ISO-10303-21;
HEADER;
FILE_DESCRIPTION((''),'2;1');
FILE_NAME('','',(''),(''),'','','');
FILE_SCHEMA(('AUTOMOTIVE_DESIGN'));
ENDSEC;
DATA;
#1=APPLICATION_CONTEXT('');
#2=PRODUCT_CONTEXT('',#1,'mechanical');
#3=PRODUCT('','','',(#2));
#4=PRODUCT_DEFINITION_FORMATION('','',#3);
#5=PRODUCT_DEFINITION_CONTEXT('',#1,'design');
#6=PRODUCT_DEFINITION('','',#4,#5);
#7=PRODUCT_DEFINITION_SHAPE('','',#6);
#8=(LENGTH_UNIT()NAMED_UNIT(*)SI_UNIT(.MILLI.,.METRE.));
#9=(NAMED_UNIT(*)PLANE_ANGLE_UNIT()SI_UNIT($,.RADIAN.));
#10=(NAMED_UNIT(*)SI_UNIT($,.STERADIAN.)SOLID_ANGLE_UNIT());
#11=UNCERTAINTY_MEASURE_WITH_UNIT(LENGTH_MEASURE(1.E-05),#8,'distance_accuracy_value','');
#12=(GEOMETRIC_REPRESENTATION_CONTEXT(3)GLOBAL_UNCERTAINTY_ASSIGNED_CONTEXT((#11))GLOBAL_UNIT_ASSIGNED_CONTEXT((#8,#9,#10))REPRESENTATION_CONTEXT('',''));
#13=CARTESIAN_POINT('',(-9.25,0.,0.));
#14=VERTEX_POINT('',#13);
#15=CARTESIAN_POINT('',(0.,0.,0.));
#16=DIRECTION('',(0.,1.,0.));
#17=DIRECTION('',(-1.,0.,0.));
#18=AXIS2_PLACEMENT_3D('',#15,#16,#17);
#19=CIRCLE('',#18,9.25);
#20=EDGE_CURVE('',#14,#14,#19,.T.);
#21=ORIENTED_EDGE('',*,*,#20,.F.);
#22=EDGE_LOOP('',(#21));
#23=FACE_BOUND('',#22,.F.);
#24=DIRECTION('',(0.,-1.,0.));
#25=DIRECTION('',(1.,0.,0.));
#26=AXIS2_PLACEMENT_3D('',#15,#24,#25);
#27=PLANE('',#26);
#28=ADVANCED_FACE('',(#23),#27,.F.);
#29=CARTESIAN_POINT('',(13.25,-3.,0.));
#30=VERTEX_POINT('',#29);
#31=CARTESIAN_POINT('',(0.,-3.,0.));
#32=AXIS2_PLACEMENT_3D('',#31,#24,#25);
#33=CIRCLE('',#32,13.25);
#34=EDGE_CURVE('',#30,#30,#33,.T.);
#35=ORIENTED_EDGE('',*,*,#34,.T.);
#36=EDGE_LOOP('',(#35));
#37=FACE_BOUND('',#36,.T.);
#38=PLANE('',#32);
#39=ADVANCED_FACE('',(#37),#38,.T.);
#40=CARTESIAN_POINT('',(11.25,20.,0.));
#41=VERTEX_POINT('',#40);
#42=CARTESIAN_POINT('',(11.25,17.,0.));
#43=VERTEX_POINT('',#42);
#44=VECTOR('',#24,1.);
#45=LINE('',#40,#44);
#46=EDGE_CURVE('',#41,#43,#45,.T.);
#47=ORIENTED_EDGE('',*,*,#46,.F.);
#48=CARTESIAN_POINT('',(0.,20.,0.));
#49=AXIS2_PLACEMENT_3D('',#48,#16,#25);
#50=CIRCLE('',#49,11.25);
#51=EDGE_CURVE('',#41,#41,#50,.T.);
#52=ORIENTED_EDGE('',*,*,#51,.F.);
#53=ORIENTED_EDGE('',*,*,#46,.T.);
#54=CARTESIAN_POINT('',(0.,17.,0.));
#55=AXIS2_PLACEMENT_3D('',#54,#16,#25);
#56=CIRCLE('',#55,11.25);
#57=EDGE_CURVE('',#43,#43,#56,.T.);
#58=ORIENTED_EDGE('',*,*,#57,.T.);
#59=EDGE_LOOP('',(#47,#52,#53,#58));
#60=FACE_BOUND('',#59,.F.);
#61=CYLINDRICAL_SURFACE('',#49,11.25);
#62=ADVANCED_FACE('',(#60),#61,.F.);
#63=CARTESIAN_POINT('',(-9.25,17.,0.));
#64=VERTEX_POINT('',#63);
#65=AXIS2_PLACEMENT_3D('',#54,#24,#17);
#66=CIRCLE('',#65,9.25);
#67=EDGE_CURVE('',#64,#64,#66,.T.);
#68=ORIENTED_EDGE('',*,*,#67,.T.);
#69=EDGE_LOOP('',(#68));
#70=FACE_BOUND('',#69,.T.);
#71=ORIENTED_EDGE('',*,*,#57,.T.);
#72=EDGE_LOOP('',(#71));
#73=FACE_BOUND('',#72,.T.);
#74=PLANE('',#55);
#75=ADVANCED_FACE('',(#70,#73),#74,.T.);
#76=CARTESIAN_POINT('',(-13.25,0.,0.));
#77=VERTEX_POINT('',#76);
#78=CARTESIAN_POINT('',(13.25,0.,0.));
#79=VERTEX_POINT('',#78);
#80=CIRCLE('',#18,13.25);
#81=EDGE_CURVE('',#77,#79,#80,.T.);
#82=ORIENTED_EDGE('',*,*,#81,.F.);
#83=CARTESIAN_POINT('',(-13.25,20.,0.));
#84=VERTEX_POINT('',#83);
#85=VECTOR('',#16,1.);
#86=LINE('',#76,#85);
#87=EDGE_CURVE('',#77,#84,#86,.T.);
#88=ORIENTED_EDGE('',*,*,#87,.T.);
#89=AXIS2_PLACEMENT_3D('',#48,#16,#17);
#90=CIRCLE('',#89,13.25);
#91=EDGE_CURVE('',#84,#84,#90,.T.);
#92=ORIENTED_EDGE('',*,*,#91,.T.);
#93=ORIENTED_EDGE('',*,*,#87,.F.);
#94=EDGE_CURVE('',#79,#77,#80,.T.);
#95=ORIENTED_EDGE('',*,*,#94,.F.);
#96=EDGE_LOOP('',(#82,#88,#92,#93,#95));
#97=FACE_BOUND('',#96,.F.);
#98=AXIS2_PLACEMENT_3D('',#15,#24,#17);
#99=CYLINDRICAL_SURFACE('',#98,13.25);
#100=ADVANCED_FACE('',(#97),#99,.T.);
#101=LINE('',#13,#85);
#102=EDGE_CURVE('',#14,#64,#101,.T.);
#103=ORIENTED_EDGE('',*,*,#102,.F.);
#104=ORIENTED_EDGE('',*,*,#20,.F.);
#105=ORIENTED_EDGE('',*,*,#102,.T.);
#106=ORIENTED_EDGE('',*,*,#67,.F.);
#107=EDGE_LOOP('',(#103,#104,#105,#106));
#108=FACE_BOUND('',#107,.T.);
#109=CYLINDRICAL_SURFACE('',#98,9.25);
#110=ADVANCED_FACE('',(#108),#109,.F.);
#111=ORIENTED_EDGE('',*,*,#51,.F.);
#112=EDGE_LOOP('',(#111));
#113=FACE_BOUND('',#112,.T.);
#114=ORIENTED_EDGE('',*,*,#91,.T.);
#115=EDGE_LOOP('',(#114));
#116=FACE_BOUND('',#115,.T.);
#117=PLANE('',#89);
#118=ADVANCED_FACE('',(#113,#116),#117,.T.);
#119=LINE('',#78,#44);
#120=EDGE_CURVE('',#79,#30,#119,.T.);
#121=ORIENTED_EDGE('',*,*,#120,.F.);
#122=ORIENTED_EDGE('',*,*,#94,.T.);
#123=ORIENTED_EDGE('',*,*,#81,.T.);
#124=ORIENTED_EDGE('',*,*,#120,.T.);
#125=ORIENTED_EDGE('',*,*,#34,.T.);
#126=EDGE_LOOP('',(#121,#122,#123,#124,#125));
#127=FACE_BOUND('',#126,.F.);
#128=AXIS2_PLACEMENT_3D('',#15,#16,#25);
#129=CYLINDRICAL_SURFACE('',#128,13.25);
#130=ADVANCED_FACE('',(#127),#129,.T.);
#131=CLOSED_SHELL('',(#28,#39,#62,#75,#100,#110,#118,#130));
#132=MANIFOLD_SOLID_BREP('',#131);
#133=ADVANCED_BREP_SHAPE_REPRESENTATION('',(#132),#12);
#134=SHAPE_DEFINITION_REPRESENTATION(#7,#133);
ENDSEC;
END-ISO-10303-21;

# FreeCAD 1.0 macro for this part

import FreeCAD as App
import Part
import Sketcher
from FreeCAD import Vector

doc = App.newDocument("Part")
body = doc.addObject("PartDesign::Body", "Body")

# Sketch on XZ plane
sketch1 = body.newObject("Sketcher::SketchObject", "Sketch")
sketch1.AttachmentSupport = (doc.getObject("XZ_Plane"), [""])
sketch1.MapMode = "FlatFace"
sketch1.addGeometry(Part.Circle(Vector(0, 0, 0), Vector(0, 0, 1), 13), False)
sketch1.addGeometry(Part.Circle(Vector(0, 0, 0), Vector(0, 0, 1), 9), False)
sketch1.addConstraint(Sketcher.Constraint("Coincident", 0, 3, -1, 1))
sketch1.addConstraint(Sketcher.Constraint("Coincident", 1, 3, -1, 1))
sketch1.addConstraint(Sketcher.Constraint("Diameter", 1, 18.5))
sketch1.addConstraint(Sketcher.Constraint("Diameter", 0, 26.5))
pad1 = body.newObject("PartDesign::Pad", "Pad")
pad1.Profile = sketch1
pad1.Length = 20
pad1.Reversed = True

# Sketch on XZ plane
sketch2 = body.newObject("Sketcher::SketchObject", "Sketch001")
sketch2.AttachmentSupport = (doc.getObject("XZ_Plane"), [""])
sketch2.MapMode = "FlatFace"
sketch2.addGeometry(Part.Circle(Vector(0, 0, 0), Vector(0, 0, 1), 13), False)
sketch2.addConstraint(Sketcher.Constraint("Coincident", 0, 3, -1, 1))
sketch2.addConstraint(Sketcher.Constraint("Diameter", 0, 26.5))
pad2 = body.newObject("PartDesign::Pad", "Pad001")
pad2.Profile = sketch2
pad2.Length = 3

# Sketch on XZ plane
sketch3 = body.newObject("Sketcher::SketchObject", "Sketch002")
sketch3.AttachmentSupport = (doc.getObject("XZ_Plane"), [""])
sketch3.MapMode = "FlatFace"
sketch3.AttachmentOffset = App.Placement(Vector(0, 0, -20), App.Rotation())
sketch3.addGeometry(Part.Circle(Vector(0, 0, 0), Vector(0, 0, 1), 11), False)
sketch3.addGeometry(Part.Circle(Vector(0, 0, 0), Vector(0, 0, 1), 9), False)
sketch3.addConstraint(Sketcher.Constraint("Coincident", 0, 3, -1, 1))
sketch3.addConstraint(Sketcher.Constraint("Coincident", 1, 3, -1, 1))
sketch3.addConstraint(Sketcher.Constraint("Diameter", 0, 22.5))
sketch3.addConstraint(Sketcher.Constraint("Diameter", 1, 18.5))
pocket1 = body.newObject("PartDesign::Pocket", "Pocket")
pocket1.Profile = sketch3
pocket1.Length = 3
pocket1.Reversed = True

doc.recompute()
